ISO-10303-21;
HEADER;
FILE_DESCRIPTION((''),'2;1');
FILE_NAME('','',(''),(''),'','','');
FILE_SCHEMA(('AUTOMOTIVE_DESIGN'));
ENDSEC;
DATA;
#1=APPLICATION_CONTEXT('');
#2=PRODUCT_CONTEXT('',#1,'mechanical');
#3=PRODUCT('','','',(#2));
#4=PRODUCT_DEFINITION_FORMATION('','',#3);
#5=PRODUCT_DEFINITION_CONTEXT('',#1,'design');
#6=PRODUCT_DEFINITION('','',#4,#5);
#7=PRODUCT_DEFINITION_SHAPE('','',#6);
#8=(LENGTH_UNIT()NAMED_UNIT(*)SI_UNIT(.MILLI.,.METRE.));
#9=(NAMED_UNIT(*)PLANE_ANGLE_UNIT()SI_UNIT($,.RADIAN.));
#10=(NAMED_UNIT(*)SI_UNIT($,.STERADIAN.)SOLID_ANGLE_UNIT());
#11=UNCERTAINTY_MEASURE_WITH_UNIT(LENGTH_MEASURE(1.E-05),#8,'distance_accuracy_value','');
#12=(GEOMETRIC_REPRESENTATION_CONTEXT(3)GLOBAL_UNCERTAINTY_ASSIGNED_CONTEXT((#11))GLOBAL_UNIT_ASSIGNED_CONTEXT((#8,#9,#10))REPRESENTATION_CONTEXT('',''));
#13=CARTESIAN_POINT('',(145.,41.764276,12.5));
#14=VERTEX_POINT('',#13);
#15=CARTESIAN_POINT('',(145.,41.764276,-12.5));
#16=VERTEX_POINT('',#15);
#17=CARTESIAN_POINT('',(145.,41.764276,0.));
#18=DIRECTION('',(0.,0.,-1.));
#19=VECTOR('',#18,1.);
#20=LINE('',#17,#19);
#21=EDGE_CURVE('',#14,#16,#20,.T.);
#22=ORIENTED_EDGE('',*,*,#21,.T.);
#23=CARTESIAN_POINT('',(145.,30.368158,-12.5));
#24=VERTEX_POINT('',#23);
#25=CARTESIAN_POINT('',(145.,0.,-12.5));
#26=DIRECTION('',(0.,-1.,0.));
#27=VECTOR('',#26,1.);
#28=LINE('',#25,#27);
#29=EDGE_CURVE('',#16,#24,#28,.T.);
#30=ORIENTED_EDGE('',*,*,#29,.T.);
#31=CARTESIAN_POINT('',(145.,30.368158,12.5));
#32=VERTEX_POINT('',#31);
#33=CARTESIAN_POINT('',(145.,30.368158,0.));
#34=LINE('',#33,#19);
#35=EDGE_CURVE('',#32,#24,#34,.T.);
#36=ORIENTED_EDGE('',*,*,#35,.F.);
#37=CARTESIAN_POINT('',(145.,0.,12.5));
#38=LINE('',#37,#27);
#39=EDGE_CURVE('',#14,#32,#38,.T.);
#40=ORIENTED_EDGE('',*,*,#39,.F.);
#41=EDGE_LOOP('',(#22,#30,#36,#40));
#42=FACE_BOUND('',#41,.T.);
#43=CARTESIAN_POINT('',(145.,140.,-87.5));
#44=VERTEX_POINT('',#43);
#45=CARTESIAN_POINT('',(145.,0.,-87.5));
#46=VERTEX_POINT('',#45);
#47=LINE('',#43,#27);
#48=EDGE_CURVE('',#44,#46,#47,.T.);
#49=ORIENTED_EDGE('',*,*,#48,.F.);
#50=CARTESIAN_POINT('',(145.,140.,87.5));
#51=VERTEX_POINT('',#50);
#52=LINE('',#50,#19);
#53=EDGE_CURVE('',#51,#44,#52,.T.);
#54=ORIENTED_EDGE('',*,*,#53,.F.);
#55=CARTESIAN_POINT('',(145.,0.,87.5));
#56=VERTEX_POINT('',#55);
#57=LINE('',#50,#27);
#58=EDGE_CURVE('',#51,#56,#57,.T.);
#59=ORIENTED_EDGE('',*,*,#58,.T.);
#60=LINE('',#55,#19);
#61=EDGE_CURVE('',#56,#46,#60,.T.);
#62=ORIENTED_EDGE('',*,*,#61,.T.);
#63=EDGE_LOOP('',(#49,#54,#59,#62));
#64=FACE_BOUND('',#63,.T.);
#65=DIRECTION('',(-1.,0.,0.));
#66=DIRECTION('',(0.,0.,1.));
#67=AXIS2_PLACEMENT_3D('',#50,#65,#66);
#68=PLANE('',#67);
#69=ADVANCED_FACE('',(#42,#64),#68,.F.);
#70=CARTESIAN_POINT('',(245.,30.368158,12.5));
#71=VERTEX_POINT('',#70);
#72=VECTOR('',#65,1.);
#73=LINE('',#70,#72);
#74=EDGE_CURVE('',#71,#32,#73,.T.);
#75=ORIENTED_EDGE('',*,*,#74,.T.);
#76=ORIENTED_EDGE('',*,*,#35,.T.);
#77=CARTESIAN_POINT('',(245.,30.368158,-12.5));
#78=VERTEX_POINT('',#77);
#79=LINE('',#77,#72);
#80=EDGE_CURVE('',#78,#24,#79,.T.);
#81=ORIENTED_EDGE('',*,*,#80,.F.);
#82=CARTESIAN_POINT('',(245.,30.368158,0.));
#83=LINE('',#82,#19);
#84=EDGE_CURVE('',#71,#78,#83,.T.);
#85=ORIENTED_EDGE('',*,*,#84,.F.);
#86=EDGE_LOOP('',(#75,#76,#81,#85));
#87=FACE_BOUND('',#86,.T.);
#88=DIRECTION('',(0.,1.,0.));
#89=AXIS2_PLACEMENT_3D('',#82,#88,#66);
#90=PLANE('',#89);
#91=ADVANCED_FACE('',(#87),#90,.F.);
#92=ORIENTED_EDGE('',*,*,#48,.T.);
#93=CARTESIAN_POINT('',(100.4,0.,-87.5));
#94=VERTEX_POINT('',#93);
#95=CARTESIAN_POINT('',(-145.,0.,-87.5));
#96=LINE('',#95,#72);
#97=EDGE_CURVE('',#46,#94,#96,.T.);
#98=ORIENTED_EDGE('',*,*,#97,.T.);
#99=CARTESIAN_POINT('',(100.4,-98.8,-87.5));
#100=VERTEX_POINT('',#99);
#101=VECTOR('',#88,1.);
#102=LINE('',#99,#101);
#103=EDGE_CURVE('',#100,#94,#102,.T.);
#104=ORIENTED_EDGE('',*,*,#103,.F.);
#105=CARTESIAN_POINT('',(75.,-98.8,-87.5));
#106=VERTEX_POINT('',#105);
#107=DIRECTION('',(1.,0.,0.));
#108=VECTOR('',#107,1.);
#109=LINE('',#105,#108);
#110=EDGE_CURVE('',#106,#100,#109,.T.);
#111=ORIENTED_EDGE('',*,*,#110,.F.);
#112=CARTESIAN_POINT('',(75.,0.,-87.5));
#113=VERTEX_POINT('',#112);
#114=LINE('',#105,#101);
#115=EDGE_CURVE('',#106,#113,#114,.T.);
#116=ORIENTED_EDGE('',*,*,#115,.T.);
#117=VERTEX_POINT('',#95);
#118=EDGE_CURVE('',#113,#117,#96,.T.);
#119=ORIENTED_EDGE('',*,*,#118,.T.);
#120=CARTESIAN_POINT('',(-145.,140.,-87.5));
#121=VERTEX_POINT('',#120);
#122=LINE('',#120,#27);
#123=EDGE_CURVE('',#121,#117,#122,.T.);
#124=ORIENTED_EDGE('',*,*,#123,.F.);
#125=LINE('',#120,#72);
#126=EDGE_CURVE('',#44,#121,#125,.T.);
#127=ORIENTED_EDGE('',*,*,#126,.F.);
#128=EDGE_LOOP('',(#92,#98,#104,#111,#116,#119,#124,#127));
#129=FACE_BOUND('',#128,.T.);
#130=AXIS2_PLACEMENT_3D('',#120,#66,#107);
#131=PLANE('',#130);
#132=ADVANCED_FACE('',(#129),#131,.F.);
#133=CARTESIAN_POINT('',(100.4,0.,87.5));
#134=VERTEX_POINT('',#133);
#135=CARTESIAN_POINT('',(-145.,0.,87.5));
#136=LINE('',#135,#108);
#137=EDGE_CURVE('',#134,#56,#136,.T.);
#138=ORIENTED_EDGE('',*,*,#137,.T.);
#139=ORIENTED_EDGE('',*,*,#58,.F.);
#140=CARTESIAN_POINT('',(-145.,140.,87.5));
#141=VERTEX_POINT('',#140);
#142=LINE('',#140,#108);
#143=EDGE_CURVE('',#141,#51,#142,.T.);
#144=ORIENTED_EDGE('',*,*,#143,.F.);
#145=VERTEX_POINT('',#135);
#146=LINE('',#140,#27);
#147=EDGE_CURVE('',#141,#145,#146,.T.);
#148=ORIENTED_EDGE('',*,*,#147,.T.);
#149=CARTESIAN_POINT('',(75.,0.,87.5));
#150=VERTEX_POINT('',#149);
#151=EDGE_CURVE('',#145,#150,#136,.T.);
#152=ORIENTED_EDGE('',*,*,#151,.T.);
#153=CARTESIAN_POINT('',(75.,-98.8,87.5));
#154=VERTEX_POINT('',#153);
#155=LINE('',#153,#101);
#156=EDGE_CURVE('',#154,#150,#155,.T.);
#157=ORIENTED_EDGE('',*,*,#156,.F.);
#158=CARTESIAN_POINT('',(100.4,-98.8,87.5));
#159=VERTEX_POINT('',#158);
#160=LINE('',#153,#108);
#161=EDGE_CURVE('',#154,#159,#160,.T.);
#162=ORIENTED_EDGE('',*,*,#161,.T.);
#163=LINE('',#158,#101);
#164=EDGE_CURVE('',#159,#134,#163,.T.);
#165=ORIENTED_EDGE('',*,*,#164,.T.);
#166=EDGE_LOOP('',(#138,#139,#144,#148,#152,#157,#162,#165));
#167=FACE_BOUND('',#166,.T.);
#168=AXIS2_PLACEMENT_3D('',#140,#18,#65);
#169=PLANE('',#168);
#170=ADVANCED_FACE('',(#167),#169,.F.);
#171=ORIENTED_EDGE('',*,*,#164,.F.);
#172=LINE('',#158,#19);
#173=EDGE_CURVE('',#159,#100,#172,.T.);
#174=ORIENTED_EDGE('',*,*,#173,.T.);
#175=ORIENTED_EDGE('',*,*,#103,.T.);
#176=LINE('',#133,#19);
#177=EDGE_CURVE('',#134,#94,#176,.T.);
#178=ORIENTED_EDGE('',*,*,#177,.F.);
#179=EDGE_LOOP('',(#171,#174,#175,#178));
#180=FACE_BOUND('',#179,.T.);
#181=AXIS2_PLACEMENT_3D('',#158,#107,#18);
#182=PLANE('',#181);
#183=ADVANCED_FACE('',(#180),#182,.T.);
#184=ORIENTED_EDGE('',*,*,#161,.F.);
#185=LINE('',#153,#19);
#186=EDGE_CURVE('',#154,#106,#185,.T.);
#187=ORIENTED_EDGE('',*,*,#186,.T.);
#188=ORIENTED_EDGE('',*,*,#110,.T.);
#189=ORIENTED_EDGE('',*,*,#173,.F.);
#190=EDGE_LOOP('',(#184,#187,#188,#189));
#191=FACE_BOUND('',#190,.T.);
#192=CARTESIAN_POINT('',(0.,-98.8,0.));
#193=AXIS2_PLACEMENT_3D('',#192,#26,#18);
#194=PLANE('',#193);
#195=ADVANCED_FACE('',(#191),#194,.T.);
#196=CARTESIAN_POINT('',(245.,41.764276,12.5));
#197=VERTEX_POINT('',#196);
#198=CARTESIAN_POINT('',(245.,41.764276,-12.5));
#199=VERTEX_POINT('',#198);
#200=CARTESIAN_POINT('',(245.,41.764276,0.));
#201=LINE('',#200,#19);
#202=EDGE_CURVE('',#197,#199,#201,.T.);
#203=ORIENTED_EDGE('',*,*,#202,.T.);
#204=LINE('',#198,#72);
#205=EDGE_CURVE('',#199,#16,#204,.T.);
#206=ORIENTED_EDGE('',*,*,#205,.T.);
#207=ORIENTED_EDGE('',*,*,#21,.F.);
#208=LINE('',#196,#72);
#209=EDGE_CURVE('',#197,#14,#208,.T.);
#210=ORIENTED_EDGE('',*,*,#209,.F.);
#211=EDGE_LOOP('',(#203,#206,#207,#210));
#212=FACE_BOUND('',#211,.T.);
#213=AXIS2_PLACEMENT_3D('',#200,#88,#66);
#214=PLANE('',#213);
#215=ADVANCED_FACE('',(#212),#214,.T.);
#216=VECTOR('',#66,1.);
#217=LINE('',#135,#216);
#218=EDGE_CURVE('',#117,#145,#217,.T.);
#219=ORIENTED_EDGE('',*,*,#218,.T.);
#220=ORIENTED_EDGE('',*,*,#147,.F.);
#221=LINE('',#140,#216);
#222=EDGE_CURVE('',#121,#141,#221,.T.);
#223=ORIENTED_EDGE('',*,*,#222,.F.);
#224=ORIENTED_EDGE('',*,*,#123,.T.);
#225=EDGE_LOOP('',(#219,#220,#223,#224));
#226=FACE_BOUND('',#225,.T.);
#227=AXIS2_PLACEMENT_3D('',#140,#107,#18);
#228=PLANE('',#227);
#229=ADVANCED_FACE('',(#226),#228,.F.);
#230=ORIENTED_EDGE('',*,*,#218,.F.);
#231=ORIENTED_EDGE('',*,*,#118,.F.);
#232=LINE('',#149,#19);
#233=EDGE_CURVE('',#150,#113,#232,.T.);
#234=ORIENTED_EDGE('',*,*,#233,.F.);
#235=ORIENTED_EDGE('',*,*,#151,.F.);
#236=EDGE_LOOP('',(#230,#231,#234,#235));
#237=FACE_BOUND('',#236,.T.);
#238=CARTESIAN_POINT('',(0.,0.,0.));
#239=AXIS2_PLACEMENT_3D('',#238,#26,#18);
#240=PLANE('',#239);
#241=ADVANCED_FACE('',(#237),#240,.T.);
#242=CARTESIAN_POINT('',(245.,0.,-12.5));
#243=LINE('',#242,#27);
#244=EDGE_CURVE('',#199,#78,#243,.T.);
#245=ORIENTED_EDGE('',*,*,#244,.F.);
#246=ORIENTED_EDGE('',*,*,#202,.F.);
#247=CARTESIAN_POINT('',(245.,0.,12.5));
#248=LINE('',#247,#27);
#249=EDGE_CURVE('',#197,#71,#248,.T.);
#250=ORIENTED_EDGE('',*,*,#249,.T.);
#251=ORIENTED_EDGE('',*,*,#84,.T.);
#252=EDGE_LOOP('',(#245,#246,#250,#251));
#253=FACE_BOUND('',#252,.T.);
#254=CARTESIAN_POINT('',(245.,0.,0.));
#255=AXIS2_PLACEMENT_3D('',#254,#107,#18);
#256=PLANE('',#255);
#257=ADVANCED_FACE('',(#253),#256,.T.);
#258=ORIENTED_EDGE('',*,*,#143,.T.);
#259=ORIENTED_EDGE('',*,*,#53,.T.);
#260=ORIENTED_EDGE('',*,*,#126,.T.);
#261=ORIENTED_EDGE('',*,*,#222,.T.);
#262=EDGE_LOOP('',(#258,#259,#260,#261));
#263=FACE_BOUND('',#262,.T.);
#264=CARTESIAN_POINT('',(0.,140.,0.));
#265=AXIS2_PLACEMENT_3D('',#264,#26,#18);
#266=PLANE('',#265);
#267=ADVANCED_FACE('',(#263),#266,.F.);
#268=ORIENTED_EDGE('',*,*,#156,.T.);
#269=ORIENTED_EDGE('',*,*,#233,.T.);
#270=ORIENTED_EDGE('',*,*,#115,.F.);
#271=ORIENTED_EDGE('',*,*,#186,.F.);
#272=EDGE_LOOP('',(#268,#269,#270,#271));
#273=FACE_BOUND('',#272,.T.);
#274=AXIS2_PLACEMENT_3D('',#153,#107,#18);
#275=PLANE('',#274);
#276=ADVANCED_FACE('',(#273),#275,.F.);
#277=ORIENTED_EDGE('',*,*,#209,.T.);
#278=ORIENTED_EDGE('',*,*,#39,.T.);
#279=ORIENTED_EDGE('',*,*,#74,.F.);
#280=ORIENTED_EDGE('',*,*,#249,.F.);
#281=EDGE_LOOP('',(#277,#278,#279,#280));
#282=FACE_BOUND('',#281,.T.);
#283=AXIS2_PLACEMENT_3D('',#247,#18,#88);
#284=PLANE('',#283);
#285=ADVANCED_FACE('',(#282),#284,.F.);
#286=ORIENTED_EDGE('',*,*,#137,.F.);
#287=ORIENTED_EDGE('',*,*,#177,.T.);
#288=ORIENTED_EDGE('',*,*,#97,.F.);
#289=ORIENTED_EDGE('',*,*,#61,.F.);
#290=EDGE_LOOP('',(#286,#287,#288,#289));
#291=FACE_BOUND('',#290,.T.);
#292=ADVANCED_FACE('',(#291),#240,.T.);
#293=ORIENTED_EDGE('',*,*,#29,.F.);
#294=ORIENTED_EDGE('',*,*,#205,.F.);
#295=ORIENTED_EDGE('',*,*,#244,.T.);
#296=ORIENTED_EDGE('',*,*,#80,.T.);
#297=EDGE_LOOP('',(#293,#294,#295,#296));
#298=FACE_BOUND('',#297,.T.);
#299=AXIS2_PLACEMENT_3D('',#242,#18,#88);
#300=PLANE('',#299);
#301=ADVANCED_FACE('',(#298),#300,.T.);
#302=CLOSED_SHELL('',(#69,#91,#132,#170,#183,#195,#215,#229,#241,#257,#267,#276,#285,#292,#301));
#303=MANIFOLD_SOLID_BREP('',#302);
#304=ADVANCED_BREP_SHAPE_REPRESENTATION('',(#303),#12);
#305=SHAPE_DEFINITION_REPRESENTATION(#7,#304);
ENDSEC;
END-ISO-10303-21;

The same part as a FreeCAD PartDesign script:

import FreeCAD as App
import Part
import Sketcher
from FreeCAD import Vector
Q = App.Units.Quantity

doc = App.newDocument("Part")
body = doc.addObject("PartDesign::Body", "Body")

# Sketch on XZ plane
sketch1 = doc.addObject("Sketcher::SketchObject", "Sketch")
body.addObject(sketch1)
sketch1.AttachmentSupport = (doc.XZ_Plane, [""])
sketch1.MapMode = "FlatFace"
sketch1.addGeometry([
    Part.LineSegment(Vector(-145, -88, 0), Vector(-145, 88, 0)),
    Part.LineSegment(Vector(-145, 88, 0), Vector(145, 88, 0)),
    Part.LineSegment(Vector(145, 88, 0), Vector(145, -88, 0)),
    Part.LineSegment(Vector(145, -88, 0), Vector(-145, -88, 0)),
], False)
sketch1.addConstraint([
    Sketcher.Constraint("Coincident", 0, 2, 1, 1),
    Sketcher.Constraint("Coincident", 1, 2, 2, 1),
    Sketcher.Constraint("Coincident", 2, 2, 3, 1),
    Sketcher.Constraint("Coincident", 3, 2, 0, 1),
    Sketcher.Constraint("Vertical", 0),
    Sketcher.Constraint("Horizontal", 1),
    Sketcher.Constraint("Vertical", 2),
    Sketcher.Constraint("Horizontal", 3),
    Sketcher.Constraint("Symmetric", 0, 2, 2, 2, -1, 1),
    Sketcher.Constraint("DistanceX", 1, 1, 1, 2, Q("290 mm")),
    Sketcher.Constraint("DistanceY", 0, 1, 0, 2, Q("175 mm")),
])
pad1 = doc.addObject("PartDesign::Pad", "Pad")
body.addObject(pad1)
pad1.Profile = sketch1
pad1.Length = 140
pad1.Reversed = True

# Sketch on XZ plane
sketch2 = doc.addObject("Sketcher::SketchObject", "Sketch001")
body.addObject(sketch2)
sketch2.AttachmentSupport = (doc.XZ_Plane, [""])
sketch2.MapMode = "FlatFace"
sketch2.addGeometry([
    Part.LineSegment(Vector(75, 88, 0), Vector(75, -88, 0)),
    Part.LineSegment(Vector(75, -88, 0), Vector(100, -88, 0)),
    Part.LineSegment(Vector(100, -88, 0), Vector(100, 88, 0)),
    Part.LineSegment(Vector(100, 88, 0), Vector(75, 88, 0)),
], False)
sketch2.addConstraint([
    Sketcher.Constraint("Coincident", 0, 2, 1, 1),
    Sketcher.Constraint("Coincident", 1, 2, 2, 1),
    Sketcher.Constraint("Coincident", 2, 2, 3, 1),
    Sketcher.Constraint("Coincident", 3, 2, 0, 1),
    Sketcher.Constraint("Vertical", 0),
    Sketcher.Constraint("Horizontal", 1),
    Sketcher.Constraint("Vertical", 2),
    Sketcher.Constraint("Horizontal", 3),
    Sketcher.Constraint("DistanceY", 0, 2, 0, 1, Q("175 mm")),
    Sketcher.Constraint("DistanceX", 1, 1, 1, 2, Q("25.4 mm")),
    Sketcher.Constraint("DistanceX", -1, 1, 0, 2, Q("75 mm")),
    Sketcher.Constraint("DistanceY", 0, 2, -1, 1, Q("87.5 mm")),
])
pad2 = doc.addObject("PartDesign::Pad", "Pad001")
body.addObject(pad2)
pad2.Profile = sketch2
pad2.Length = 98.8

# Sketch on YZ plane
sketch3 = doc.addObject("Sketcher::SketchObject", "Sketch002")
body.addObject(sketch3)
sketch3.AttachmentSupport = (doc.YZ_Plane, [""])
sketch3.MapMode = "FlatFace"
sketch3.AttachmentOffset = App.Placement(Vector(0, 0, 145), App.Rotation())
sketch3.addGeometry([
    Part.LineSegment(Vector(42, 12, 0), Vector(30, 12, 0)),
    Part.LineSegment(Vector(30, 12, 0), Vector(30, -12, 0)),
    Part.LineSegment(Vector(30, -12, 0), Vector(42, -12, 0)),
    Part.LineSegment(Vector(42, -12, 0), Vector(42, 12, 0)),
], False)
sketch3.addConstraint([
    Sketcher.Constraint("Coincident", 0, 2, 1, 1),
    Sketcher.Constraint("Coincident", 1, 2, 2, 1),
    Sketcher.Constraint("Coincident", 2, 2, 3, 1),
    Sketcher.Constraint("Coincident", 3, 2, 0, 1),
    Sketcher.Constraint("Horizontal", 0),
    Sketcher.Constraint("Vertical", 1),
    Sketcher.Constraint("Horizontal", 2),
    Sketcher.Constraint("Vertical", 3),
    Sketcher.Constraint("DistanceY", 1, 2, 1, 1, Q("25 mm")),
    Sketcher.Constraint("DistanceY", -1, 1, 0, 2, Q("12.5 mm")),
    Sketcher.Constraint("DistanceX", 0, 2, 0, 1, Q("11.396117 mm")),
    Sketcher.Constraint("DistanceX", -1, 1, 0, 2, Q("30.368158 mm")),
])
pad3 = doc.addObject("PartDesign::Pad", "Pad002")
body.addObject(pad3)
pad3.Profile = sketch3
pad3.Length = 100

doc.recompute()
